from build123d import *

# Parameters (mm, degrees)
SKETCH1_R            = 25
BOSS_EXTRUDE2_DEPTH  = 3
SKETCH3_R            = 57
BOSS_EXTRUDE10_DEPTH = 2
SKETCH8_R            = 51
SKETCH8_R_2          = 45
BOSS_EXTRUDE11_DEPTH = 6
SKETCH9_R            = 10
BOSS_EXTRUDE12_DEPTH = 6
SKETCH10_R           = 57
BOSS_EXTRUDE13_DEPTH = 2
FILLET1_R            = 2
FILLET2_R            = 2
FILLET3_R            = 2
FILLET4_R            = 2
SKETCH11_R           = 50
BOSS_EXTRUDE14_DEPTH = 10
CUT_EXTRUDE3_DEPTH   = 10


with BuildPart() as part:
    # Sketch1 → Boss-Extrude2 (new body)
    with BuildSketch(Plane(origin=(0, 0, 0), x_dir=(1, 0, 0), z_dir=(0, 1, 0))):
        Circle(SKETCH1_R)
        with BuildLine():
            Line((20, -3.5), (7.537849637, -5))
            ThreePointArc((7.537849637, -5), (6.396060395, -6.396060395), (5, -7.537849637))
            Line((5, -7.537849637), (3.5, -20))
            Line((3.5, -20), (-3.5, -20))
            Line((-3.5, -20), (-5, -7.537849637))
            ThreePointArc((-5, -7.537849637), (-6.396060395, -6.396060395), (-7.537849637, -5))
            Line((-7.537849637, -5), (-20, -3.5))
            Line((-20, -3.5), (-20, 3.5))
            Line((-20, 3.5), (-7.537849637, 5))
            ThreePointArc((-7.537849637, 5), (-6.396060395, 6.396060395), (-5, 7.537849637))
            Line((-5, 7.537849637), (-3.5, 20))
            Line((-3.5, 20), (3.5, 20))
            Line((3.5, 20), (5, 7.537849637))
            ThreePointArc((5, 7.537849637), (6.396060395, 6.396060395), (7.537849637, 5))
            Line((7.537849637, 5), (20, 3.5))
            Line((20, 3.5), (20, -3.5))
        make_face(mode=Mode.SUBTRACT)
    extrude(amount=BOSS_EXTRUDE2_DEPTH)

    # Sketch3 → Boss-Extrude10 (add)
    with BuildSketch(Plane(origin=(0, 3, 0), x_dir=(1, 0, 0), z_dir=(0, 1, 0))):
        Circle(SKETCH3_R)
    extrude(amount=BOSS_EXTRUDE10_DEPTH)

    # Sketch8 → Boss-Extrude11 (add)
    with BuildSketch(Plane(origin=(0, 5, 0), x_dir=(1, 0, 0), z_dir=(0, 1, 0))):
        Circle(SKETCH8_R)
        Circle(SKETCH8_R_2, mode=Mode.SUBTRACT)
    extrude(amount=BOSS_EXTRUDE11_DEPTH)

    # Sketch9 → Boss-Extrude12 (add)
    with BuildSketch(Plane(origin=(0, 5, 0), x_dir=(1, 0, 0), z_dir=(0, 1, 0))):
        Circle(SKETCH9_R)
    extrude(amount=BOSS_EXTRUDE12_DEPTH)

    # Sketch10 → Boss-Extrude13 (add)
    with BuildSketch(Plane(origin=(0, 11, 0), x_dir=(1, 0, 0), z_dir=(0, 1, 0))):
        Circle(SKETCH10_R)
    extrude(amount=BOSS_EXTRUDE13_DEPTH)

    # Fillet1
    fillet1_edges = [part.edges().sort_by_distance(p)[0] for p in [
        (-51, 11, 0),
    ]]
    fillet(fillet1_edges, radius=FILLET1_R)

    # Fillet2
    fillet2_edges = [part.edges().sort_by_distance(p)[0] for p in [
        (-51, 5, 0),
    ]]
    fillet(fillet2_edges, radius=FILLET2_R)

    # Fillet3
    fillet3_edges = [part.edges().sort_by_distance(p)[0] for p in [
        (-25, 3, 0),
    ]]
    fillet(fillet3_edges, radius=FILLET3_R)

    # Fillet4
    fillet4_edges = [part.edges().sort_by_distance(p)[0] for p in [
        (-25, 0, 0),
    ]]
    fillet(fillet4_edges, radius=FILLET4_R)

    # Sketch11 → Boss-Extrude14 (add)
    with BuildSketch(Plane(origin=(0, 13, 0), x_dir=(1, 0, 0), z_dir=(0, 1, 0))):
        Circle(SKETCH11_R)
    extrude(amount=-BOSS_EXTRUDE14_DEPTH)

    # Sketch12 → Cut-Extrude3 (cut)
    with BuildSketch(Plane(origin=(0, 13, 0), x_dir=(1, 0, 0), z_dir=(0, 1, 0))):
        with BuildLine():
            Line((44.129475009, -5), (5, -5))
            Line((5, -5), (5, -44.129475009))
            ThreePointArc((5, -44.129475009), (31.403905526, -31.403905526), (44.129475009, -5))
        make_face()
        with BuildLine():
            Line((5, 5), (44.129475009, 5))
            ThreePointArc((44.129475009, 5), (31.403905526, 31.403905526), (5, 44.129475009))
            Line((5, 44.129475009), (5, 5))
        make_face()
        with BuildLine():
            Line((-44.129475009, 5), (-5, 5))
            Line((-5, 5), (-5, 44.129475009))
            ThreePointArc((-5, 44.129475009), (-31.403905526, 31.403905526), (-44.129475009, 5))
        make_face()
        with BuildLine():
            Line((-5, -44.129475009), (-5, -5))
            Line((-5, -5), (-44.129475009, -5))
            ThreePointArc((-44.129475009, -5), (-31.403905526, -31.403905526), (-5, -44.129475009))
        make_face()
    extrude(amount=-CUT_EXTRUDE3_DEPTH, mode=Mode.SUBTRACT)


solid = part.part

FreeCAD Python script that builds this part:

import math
import FreeCAD as App
import Part
import Sketcher
from FreeCAD import Vector
Q = App.Units.Quantity


def edges_at(feature, points):
    """Names of the edges that pass closest to the given points."""
    edges = feature.Shape.Edges
    near = lambda p: min(range(len(edges)), key=lambda i: edges[i].distToShape(Part.Vertex(*p))[0])
    return sorted({f"Edge{near(p) + 1}" for p in points})

doc = App.newDocument("Part")
body = doc.addObject("PartDesign::Body", "Body")

# Sketch on XZ plane
sketch1 = body.newObject("Sketcher::SketchObject", "Sketch")
sketch1.AttachmentSupport = (doc.getObject("XZ_Plane"), [""])
sketch1.MapMode = "FlatFace"
sketch1.addGeometry([
    Part.Circle(Vector(0, 0, 0), Vector(0, 0, 1), 25),  # 0
    Part.LineSegment(Vector(20, -3.5, 0), Vector(20, 3.5, 0)),  # 1
    Part.LineSegment(Vector(20, 3.5, 0), Vector(7.53785, 5, 0)),  # 2
    Part.ArcOfCircle(Part.Circle(Vector(0, 0, 0), Vector(0, 0, 1), 9.045395), math.radians(33.557079), math.radians(56.442921)),  # 3
    Part.LineSegment(Vector(5, 7.53785, 0), Vector(3.5, 20, 0)),  # 4
    Part.LineSegment(Vector(3.5, 20, 0), Vector(-3.5, 20, 0)),  # 5
    Part.LineSegment(Vector(-3.5, 20, 0), Vector(-5, 7.53785, 0)),  # 6
    Part.ArcOfCircle(Part.Circle(Vector(0, 0, 0), Vector(0, 0, 1), 9.045395), math.radians(123.557079), math.radians(146.442921)),  # 7
    Part.LineSegment(Vector(-7.53785, 5, 0), Vector(-20, 3.5, 0)),  # 8
    Part.LineSegment(Vector(-20, 3.5, 0), Vector(-20, -3.5, 0)),  # 9
    Part.LineSegment(Vector(-20, -3.5, 0), Vector(-7.53785, -5, 0)),  # 10
    Part.ArcOfCircle(Part.Circle(Vector(0, 0, 0), Vector(0, 0, 1), 9.045395), math.radians(-146.442921), math.radians(-123.557079)),  # 11
    Part.LineSegment(Vector(-5, -7.53785, 0), Vector(-3.5, -20, 0)),  # 12
    Part.LineSegment(Vector(-3.5, -20, 0), Vector(3.5, -20, 0)),  # 13
    Part.LineSegment(Vector(3.5, -20, 0), Vector(5, -7.53785, 0)),  # 14
    Part.ArcOfCircle(Part.Circle(Vector(0, 0, 0), Vector(0, 0, 1), 9.045395), math.radians(-56.442921), math.radians(-33.557079)),  # 15
    Part.LineSegment(Vector(7.53785, -5, 0), Vector(20, -3.5, 0)),  # 16
], False)
sketch1.addConstraint([
    Sketcher.Constraint("Coincident", 1, 2, 2, 1),
    Sketcher.Constraint("Coincident", 2, 2, 3, 1),
    Sketcher.Constraint("Coincident", 3, 2, 4, 1),
    Sketcher.Constraint("Coincident", 4, 2, 5, 1),
    Sketcher.Constraint("Coincident", 5, 2, 6, 1),
    Sketcher.Constraint("Coincident", 6, 2, 7, 1),
    Sketcher.Constraint("Coincident", 7, 2, 8, 1),
    Sketcher.Constraint("Coincident", 8, 2, 9, 1),
    Sketcher.Constraint("Coincident", 9, 2, 10, 1),
    Sketcher.Constraint("Coincident", 10, 2, 11, 1),
    Sketcher.Constraint("Coincident", 11, 2, 12, 1),
    Sketcher.Constraint("Coincident", 12, 2, 13, 1),
    Sketcher.Constraint("Coincident", 13, 2, 14, 1),
    Sketcher.Constraint("Coincident", 14, 2, 15, 1),
    Sketcher.Constraint("Coincident", 15, 2, 16, 1),
    Sketcher.Constraint("Coincident", 16, 2, 1, 1),
    Sketcher.Constraint("Vertical", 1),
    Sketcher.Constraint("Horizontal", 5),
    Sketcher.Constraint("Vertical", 9),
    Sketcher.Constraint("Horizontal", 13),
    Sketcher.Constraint("Coincident", 0, 3, -1, 1),
    Sketcher.Constraint("Coincident", 3, 3, -1, 1),
    Sketcher.Constraint("Coincident", 7, 3, -1, 1),
    Sketcher.Constraint("Coincident", 11, 3, -1, 1),
    Sketcher.Constraint("Coincident", 15, 3, -1, 1),
    Sketcher.Constraint("Equal", 3, 7),
    Sketcher.Constraint("Equal", 7, 11),
    Sketcher.Constraint("Equal", 11, 15),
    Sketcher.Constraint("Symmetric", 1, 2, 9, 2, -1, 1),
    Sketcher.Constraint("Symmetric", 4, 2, 12, 2, -1, 1),
    Sketcher.Constraint("Perpendicular", 2, 6),
    Sketcher.Constraint("Perpendicular", 4, 8),
    Sketcher.Constraint("Perpendicular", 6, 10),
    Sketcher.Constraint("Perpendicular", 8, 12),
    Sketcher.Constraint("Perpendicular", 10, 14),
    Sketcher.Constraint("Perpendicular", 12, 16),
    Sketcher.Constraint("Horizontal", 3, 2, 6, 2),
    Sketcher.Constraint("Horizontal", 2, 2, 7, 2),
    Sketcher.Constraint("Horizontal", 1, 2, 8, 2),
    Sketcher.Constraint("Horizontal", 11, 2, 14, 2),
    Sketcher.Constraint("Horizontal", 10, 2, 15, 2),
    Sketcher.Constraint("Equal", 13, 1),
    Sketcher.Constraint("Equal", 2, 4),
    Sketcher.Constraint("Diameter", 0, Q("50 mm")),
    Sketcher.Constraint("DistanceX", 5, 2, 5, 1, Q("7 mm")),
    Sketcher.Constraint("DistanceX", -1, 1, 1, 2, Q("20 mm")),
    Sketcher.Constraint("DistanceY", -1, 1, 2, 2, Q("5 mm")),
    Sketcher.Constraint("Radius", 3, Q("9.045395 mm")),
])
pad1 = body.newObject("PartDesign::Pad", "Pad")
pad1.Profile = sketch1
pad1.Length = 3
pad1.Reversed = True

# Sketch on XZ plane
sketch2 = body.newObject("Sketcher::SketchObject", "Sketch001")
sketch2.AttachmentSupport = (doc.getObject("XZ_Plane"), [""])
sketch2.MapMode = "FlatFace"
sketch2.AttachmentOffset = App.Placement(Vector(0, 0, -3), App.Rotation())
sketch2.addGeometry(Part.Circle(Vector(0, 0, 0), Vector(0, 0, 1), 57), False)
sketch2.addConstraint([
    Sketcher.Constraint("Coincident", 0, 3, -1, 1),
    Sketcher.Constraint("Diameter", 0, Q("114 mm")),
])
pad2 = body.newObject("PartDesign::Pad", "Pad001")
pad2.Profile = sketch2
pad2.Length = 2
pad2.Reversed = True

# Sketch on XZ plane
sketch3 = body.newObject("Sketcher::SketchObject", "Sketch002")
sketch3.AttachmentSupport = (doc.getObject("XZ_Plane"), [""])
sketch3.MapMode = "FlatFace"
sketch3.AttachmentOffset = App.Placement(Vector(0, 0, -5), App.Rotation())
sketch3.addGeometry([
    Part.Circle(Vector(0, 0, 0), Vector(0, 0, 1), 51),
    Part.Circle(Vector(0, 0, 0), Vector(0, 0, 1), 45),
], False)
sketch3.addConstraint([
    Sketcher.Constraint("Coincident", 0, 3, -1, 1),
    Sketcher.Constraint("Coincident", 1, 3, -1, 1),
    Sketcher.Constraint("Diameter", 0, Q("102 mm")),
    Sketcher.Constraint("Diameter", 1, Q("90 mm")),
])
pad3 = body.newObject("PartDesign::Pad", "Pad002")
pad3.Profile = sketch3
pad3.Length = 6
pad3.Reversed = True

# Sketch on XZ plane
sketch4 = body.newObject("Sketcher::SketchObject", "Sketch003")
sketch4.AttachmentSupport = (doc.getObject("XZ_Plane"), [""])
sketch4.MapMode = "FlatFace"
sketch4.AttachmentOffset = App.Placement(Vector(0, 0, -5), App.Rotation())
sketch4.addGeometry(Part.Circle(Vector(0, 0, 0), Vector(0, 0, 1), 10), False)
sketch4.addConstraint([
    Sketcher.Constraint("Coincident", 0, 3, -1, 1),
    Sketcher.Constraint("Diameter", 0, Q("20 mm")),
])
pad4 = body.newObject("PartDesign::Pad", "Pad003")
pad4.Profile = sketch4
pad4.Length = 6
pad4.Reversed = True

# Sketch on XZ plane
sketch5 = body.newObject("Sketcher::SketchObject", "Sketch004")
sketch5.AttachmentSupport = (doc.getObject("XZ_Plane"), [""])
sketch5.MapMode = "FlatFace"
sketch5.AttachmentOffset = App.Placement(Vector(0, 0, -11), App.Rotation())
sketch5.addGeometry(Part.Circle(Vector(0, 0, 0), Vector(0, 0, 1), 57), False)
sketch5.addConstraint([
    Sketcher.Constraint("Coincident", 0, 3, -1, 1),
    Sketcher.Constraint("Diameter", 0, Q("114 mm")),
])
pad5 = body.newObject("PartDesign::Pad", "Pad004")
pad5.Profile = sketch5
pad5.Length = 2
pad5.Reversed = True
doc.recompute()

fillet = body.newObject("PartDesign::Fillet", "Fillet")
fillet.Base = (pad5, edges_at(pad5, [(-51, 11, 0)]))
fillet.Radius = 2
doc.recompute()

fillet2 = body.newObject("PartDesign::Fillet", "Fillet001")
fillet2.Base = (fillet, edges_at(fillet, [(-51, 5, 0)]))
fillet2.Radius = 2
doc.recompute()

fillet3 = body.newObject("PartDesign::Fillet", "Fillet002")
fillet3.Base = (fillet2, edges_at(fillet2, [(-25, 3, 0)]))
fillet3.Radius = 2
doc.recompute()

fillet4 = body.newObject("PartDesign::Fillet", "Fillet003")
fillet4.Base = (fillet3, edges_at(fillet3, [(-25, 0, 0)]))
fillet4.Radius = 2

# Sketch on XZ plane
sketch6 = body.newObject("Sketcher::SketchObject", "Sketch005")
sketch6.AttachmentSupport = (doc.getObject("XZ_Plane"), [""])
sketch6.MapMode = "FlatFace"
sketch6.AttachmentOffset = App.Placement(Vector(0, 0, -13), App.Rotation())
sketch6.addGeometry(Part.Circle(Vector(0, 0, 0), Vector(0, 0, 1), 50), False)
sketch6.addConstraint([
    Sketcher.Constraint("Coincident", 0, 3, -1, 1),
    Sketcher.Constraint("Diameter", 0, Q("100 mm")),
])
pad6 = body.newObject("PartDesign::Pad", "Pad005")
pad6.Profile = sketch6
pad6.Length = 10

# Sketch on XZ plane
sketch7 = body.newObject("Sketcher::SketchObject", "Sketch006")
sketch7.AttachmentSupport = (doc.getObject("XZ_Plane"), [""])
sketch7.MapMode = "FlatFace"
sketch7.AttachmentOffset = App.Placement(Vector(0, 0, -13), App.Rotation())
sketch7.addGeometry([
    Part.LineSegment(Vector(44.129475, 5, 0), Vector(5, 5, 0)),  # 0
    Part.LineSegment(Vector(5, 5, 0), Vector(5, 44.129475, 0)),  # 1
    Part.ArcOfCircle(Part.Circle(Vector(0, 0, 0), Vector(0, 0, 1), 44.411829), math.radians(6.464214), math.radians(83.535786)),  # 2
    Part.LineSegment(Vector(5, -5, 0), Vector(44.129475, -5, 0)),  # 3
    Part.ArcOfCircle(Part.Circle(Vector(0, 0, 0), Vector(0, 0, 1), 44.411829), math.radians(-83.535786), math.radians(-6.464214)),  # 4
    Part.LineSegment(Vector(5, -44.129475, 0), Vector(5, -5, 0)),  # 5
    Part.LineSegment(Vector(-44.129475, -5, 0), Vector(-5, -5, 0)),  # 6
    Part.LineSegment(Vector(-5, -5, 0), Vector(-5, -44.129475, 0)),  # 7
    Part.ArcOfCircle(Part.Circle(Vector(0, 0, 0), Vector(0, 0, 1), 44.411829), math.radians(-173.535786), math.radians(-96.464214)),  # 8
    Part.LineSegment(Vector(-5, 44.129475, 0), Vector(-5, 5, 0)),  # 9
    Part.LineSegment(Vector(-5, 5, 0), Vector(-44.129475, 5, 0)),  # 10
    Part.ArcOfCircle(Part.Circle(Vector(0, 0, 0), Vector(0, 0, 1), 44.411829), math.radians(96.464214), math.radians(173.535786)),  # 11
], False)
sketch7.addConstraint([
    Sketcher.Constraint("Coincident", 0, 2, 1, 1),
    Sketcher.Constraint("Coincident", 1, 2, 2, 2),
    Sketcher.Constraint("Coincident", 2, 1, 0, 1),
    Sketcher.Constraint("Coincident", 3, 2, 4, 2),
    Sketcher.Constraint("Coincident", 4, 1, 5, 1),
    Sketcher.Constraint("Coincident", 5, 2, 3, 1),
    Sketcher.Constraint("Coincident", 6, 2, 7, 1),
    Sketcher.Constraint("Coincident", 7, 2, 8, 2),
    Sketcher.Constraint("Coincident", 8, 1, 6, 1),
    Sketcher.Constraint("Coincident", 9, 2, 10, 1),
    Sketcher.Constraint("Coincident", 10, 2, 11, 2),
    Sketcher.Constraint("Coincident", 11, 1, 9, 1),
    Sketcher.Constraint("Horizontal", 0),
    Sketcher.Constraint("Vertical", 1),
    Sketcher.Constraint("Horizontal", 3),
    Sketcher.Constraint("Vertical", 5),
    Sketcher.Constraint("Horizontal", 6),
    Sketcher.Constraint("Vertical", 7),
    Sketcher.Constraint("Vertical", 9),
    Sketcher.Constraint("Horizontal", 10),
    Sketcher.Constraint("Coincident", 2, 3, -1, 1),
    Sketcher.Constraint("Coincident", 4, 3, -1, 1),
    Sketcher.Constraint("Coincident", 8, 3, -1, 1),
    Sketcher.Constraint("Coincident", 11, 3, -1, 1),
    Sketcher.Constraint("Equal", 2, 4),
    Sketcher.Constraint("Equal", 4, 8),
    Sketcher.Constraint("Equal", 8, 11),
    Sketcher.Constraint("Symmetric", 0, 2, 6, 2, -1, 1),
    Sketcher.Constraint("Symmetric", 5, 2, 9, 2, -1, 1),
    Sketcher.Constraint("Symmetric", 5, 2, 6, 2, -2),
    Sketcher.Constraint("Equal", 10, 1),
    Sketcher.Constraint("DistanceX", -1, 1, 0, 2, Q("5 mm")),
    Sketcher.Constraint("Radius", 2, Q("44.411829 mm")),
])
pocket1 = body.newObject("PartDesign::Pocket", "Pocket")
pocket1.Profile = sketch7
pocket1.Length = 10
pocket1.Reversed = True

doc.recompute()
